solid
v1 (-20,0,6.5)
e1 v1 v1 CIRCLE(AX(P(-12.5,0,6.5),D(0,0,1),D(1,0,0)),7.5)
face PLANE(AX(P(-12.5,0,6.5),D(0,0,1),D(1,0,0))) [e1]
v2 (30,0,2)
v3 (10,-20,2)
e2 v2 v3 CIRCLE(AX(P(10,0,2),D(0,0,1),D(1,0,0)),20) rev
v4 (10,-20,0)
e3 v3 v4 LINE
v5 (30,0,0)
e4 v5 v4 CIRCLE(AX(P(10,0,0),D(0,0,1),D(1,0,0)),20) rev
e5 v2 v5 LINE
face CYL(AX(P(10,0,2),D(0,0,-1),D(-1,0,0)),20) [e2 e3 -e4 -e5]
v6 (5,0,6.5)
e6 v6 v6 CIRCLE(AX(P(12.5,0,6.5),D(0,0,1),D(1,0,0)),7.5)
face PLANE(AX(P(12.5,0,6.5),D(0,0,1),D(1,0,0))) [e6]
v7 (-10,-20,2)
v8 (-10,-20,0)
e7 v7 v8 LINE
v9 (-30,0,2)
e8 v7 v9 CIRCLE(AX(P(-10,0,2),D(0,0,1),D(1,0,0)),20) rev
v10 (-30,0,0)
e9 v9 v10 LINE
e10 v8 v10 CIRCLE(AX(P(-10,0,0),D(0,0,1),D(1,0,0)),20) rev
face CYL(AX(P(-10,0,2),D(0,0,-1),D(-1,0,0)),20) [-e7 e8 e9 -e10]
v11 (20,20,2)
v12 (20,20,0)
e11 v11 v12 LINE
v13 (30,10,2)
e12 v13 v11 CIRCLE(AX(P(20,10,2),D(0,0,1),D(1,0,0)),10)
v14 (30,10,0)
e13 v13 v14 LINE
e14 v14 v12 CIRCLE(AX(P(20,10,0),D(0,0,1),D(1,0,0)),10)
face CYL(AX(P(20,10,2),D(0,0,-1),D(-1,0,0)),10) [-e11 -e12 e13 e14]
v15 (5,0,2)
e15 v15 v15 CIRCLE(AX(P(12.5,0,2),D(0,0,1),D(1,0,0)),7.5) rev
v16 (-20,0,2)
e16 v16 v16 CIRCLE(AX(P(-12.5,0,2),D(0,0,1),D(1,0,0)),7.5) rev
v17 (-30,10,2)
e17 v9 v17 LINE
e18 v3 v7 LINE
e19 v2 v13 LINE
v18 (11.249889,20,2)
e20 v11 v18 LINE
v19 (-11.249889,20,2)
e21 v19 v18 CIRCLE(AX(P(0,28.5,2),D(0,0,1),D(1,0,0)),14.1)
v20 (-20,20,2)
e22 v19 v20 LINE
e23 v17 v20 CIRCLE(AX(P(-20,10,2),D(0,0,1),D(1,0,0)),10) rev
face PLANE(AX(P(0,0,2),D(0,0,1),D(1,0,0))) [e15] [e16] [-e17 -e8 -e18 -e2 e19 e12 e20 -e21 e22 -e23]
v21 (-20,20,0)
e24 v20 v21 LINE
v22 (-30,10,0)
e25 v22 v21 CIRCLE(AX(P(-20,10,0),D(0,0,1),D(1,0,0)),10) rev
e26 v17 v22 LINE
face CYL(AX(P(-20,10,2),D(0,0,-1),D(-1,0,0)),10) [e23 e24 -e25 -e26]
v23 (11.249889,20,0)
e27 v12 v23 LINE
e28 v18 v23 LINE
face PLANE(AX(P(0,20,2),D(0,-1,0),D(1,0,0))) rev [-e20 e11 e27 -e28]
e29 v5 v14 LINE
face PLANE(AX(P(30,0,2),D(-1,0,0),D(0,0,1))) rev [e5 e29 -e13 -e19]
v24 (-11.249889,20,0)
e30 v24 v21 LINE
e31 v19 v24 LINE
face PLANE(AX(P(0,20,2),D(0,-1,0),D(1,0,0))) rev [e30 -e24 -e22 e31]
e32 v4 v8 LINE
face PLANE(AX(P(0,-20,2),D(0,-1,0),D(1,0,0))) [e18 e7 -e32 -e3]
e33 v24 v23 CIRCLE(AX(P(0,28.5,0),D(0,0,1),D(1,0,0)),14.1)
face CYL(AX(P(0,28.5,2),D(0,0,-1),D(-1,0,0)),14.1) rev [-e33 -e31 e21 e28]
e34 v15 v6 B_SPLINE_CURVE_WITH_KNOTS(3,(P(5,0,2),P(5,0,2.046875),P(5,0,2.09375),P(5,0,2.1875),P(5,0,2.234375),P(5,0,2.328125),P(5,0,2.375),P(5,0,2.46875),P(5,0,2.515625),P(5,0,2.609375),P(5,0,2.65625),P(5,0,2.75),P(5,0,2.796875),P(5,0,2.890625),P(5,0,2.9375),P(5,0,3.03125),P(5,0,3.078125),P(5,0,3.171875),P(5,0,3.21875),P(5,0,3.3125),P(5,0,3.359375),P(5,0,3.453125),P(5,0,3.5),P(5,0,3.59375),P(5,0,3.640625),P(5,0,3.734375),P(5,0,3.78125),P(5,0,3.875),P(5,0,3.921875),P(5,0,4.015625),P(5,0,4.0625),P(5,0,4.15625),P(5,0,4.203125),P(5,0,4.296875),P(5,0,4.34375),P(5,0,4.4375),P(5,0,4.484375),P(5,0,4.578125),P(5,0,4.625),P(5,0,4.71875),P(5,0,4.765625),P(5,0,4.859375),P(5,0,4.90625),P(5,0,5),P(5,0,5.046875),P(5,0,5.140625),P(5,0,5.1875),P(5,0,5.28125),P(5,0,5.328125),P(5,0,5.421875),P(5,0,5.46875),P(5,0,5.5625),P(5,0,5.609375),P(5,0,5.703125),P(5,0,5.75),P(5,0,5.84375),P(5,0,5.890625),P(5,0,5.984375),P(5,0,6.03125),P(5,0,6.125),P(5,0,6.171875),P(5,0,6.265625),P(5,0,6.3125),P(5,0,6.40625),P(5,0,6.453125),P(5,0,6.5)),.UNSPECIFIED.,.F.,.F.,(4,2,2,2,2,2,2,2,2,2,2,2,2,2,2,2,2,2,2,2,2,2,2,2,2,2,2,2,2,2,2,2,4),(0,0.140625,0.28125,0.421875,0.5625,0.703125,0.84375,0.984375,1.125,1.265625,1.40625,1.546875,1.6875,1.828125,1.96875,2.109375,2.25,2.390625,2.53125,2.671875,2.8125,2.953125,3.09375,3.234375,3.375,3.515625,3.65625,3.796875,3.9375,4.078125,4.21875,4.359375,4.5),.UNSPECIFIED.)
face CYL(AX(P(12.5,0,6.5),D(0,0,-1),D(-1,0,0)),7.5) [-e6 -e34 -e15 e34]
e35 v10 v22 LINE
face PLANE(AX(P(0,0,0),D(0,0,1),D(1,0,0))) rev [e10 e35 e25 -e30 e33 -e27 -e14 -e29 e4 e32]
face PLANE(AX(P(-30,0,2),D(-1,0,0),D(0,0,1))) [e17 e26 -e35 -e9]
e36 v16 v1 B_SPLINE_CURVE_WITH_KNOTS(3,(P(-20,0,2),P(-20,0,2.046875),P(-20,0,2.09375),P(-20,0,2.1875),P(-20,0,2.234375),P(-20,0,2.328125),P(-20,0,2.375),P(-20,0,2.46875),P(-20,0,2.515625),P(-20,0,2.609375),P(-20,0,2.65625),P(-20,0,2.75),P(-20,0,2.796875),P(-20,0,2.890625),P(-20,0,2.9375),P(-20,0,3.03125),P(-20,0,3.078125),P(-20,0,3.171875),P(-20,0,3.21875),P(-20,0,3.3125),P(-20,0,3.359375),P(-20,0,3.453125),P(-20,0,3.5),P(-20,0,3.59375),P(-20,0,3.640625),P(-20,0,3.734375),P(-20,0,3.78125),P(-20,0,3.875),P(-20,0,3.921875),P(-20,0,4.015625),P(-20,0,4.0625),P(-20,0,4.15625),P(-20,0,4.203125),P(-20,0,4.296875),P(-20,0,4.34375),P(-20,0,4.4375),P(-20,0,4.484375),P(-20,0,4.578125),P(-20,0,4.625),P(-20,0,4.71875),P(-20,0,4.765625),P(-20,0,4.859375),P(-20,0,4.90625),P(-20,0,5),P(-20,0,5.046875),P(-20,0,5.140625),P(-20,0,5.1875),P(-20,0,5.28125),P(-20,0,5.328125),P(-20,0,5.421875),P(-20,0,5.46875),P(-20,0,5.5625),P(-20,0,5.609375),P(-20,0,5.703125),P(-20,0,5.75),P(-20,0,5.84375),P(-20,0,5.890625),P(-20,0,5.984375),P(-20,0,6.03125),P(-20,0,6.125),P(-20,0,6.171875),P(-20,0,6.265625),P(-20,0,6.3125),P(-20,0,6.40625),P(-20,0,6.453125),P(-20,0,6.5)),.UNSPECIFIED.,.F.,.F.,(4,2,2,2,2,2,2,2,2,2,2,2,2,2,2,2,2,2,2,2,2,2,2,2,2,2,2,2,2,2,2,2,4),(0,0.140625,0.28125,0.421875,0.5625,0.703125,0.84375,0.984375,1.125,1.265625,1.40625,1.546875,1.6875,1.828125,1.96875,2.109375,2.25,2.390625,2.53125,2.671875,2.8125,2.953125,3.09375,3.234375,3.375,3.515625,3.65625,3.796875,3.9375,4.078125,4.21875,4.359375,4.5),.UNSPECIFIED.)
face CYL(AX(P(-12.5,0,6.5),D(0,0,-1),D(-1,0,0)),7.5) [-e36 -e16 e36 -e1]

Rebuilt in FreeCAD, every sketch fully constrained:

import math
import FreeCAD as App
import Part
import Sketcher
Q = App.Units.Quantity

doc = App.newDocument("Part")
params = doc.addObject("Spreadsheet::Sheet", "Params")
for row, (alias, value) in enumerate([
    ("sketch1_radius", "20 mm"),
    ("sketch1_radius2", "10 mm"),
    ("sketch1_radius3", "14.1 mm"),
    ("sketch1_width", "20 mm"),
    ("sketch1_height", "10 mm"),
    ("pad1_length", "2 mm"),
    ("sketch2_diameter", "15 mm"),
    ("pad2_length", "6.5 mm"),
], start=1):
    params.set(f"A{row}", alias)
    params.set(f"B{row}", "=" + value)
    params.setAlias(f"B{row}", alias)

body = doc.addObject("PartDesign::Body", "Body")

sketch1 = body.newObject("Sketcher::SketchObject", "Sketch")
sketch1.AttachmentSupport = (doc.getObject("XY_Plane"), [""])
sketch1.MapMode = "FlatFace"
sketch1.addGeometry(Part.LineSegment(App.Vector(-10, -20, 0), App.Vector(10, -20, 0)), False)
sketch1.addGeometry(Part.ArcOfCircle(Part.Circle(App.Vector(10, 0, 0), App.Vector(0, 0, 1), 20), math.radians(-90), math.radians(0)), False)
sketch1.addGeometry(Part.LineSegment(App.Vector(30, 0, 0), App.Vector(30, 10, 0)), False)
sketch1.addGeometry(Part.ArcOfCircle(Part.Circle(App.Vector(20, 10, 0), App.Vector(0, 0, 1), 10), math.radians(0), math.radians(90)), False)
sketch1.addGeometry(Part.LineSegment(App.Vector(20, 20, 0), App.Vector(11, 20, 0)), False)
sketch1.addGeometry(Part.ArcOfCircle(Part.Circle(App.Vector(0, 28, 0), App.Vector(0, 0, 1), 14), math.radians(-143), math.radians(-37)), False)
sketch1.addGeometry(Part.LineSegment(App.Vector(-11, 20, 0), App.Vector(-20, 20, 0)), False)
sketch1.addGeometry(Part.ArcOfCircle(Part.Circle(App.Vector(-20, 10, 0), App.Vector(0, 0, 1), 10), math.radians(90), math.radians(180)), False)
sketch1.addGeometry(Part.LineSegment(App.Vector(-30, 10, 0), App.Vector(-30, 0, 0)), False)
sketch1.addGeometry(Part.ArcOfCircle(Part.Circle(App.Vector(-10, 0, 0), App.Vector(0, 0, 1), 20), math.radians(180), math.radians(270)), False)
sketch1.addConstraint(Sketcher.Constraint("Tangent", 0, 2, 1, 1))
sketch1.addConstraint(Sketcher.Constraint("Tangent", 1, 2, 2, 1))
sketch1.addConstraint(Sketcher.Constraint("Tangent", 2, 2, 3, 1))
sketch1.addConstraint(Sketcher.Constraint("Tangent", 3, 2, 4, 1))
sketch1.addConstraint(Sketcher.Constraint("Coincident", 4, 2, 5, 2))
sketch1.addConstraint(Sketcher.Constraint("Coincident", 5, 1, 6, 1))
sketch1.addConstraint(Sketcher.Constraint("Tangent", 6, 2, 7, 1))
sketch1.addConstraint(Sketcher.Constraint("Tangent", 7, 2, 8, 1))
sketch1.addConstraint(Sketcher.Constraint("Tangent", 8, 2, 9, 1))
sketch1.addConstraint(Sketcher.Constraint("Tangent", 9, 2, 0, 1))
sketch1.addConstraint(Sketcher.Constraint("Horizontal", 0))
sketch1.addConstraint(Sketcher.Constraint("Vertical", 2))
sketch1.addConstraint(Sketcher.Constraint("Horizontal", 4))
sketch1.addConstraint(Sketcher.Constraint("Horizontal", 6))
sketch1.addConstraint(Sketcher.Constraint("Vertical", 8))
sketch1.addConstraint(Sketcher.Constraint("Equal", 3, 7))
sketch1.addConstraint(Sketcher.Constraint("Equal", 1, 9))
sketch1.addConstraint(Sketcher.Constraint("Symmetric", 1, 3, 9, 3, -1, 1))
sketch1.addConstraint(Sketcher.Constraint("Symmetric", 4, 2, 5, 1, -2))
sketch1.addConstraint(Sketcher.Constraint("Radius", 1, Q("20 mm")))
sketch1.addConstraint(Sketcher.Constraint("Radius", 3, Q("10 mm")))
sketch1.addConstraint(Sketcher.Constraint("Radius", 5, Q("14.1 mm")))
sketch1.addConstraint(Sketcher.Constraint("DistanceX", 0, 1, 0, 2, Q("20 mm")))
sketch1.addConstraint(Sketcher.Constraint("DistanceY", 2, 1, 2, 2, Q("10 mm")))
sketch1.addConstraint(Sketcher.Constraint("DistanceY", -1, 1, 5, 3, Q("28.5 mm")))
sketch1.setExpression("Constraints[19]", "Params.sketch1_radius")
sketch1.setExpression("Constraints[20]", "Params.sketch1_radius2")
sketch1.setExpression("Constraints[21]", "Params.sketch1_radius3")
sketch1.setExpression("Constraints[22]", "Params.sketch1_width")
sketch1.setExpression("Constraints[23]", "Params.sketch1_height")
pad1 = body.newObject("PartDesign::Pad", "Pad")
pad1.Profile = sketch1
pad1.setExpression("Length", "Params.pad1_length")

sketch2 = body.newObject("Sketcher::SketchObject", "Sketch001")
sketch2.AttachmentSupport = (doc.getObject("XY_Plane"), [""])
sketch2.MapMode = "FlatFace"
sketch2.addGeometry(Part.Circle(App.Vector(-12, 0, 0), App.Vector(0, 0, 1), 8), False)
sketch2.addGeometry(Part.Circle(App.Vector(12, 0, 0), App.Vector(0, 0, 1), 8), False)
sketch2.addConstraint(Sketcher.Constraint("Equal", 0, 1))
sketch2.addConstraint(Sketcher.Constraint("Symmetric", 0, 3, 1, 3, -1, 1))
sketch2.addConstraint(Sketcher.Constraint("PointOnObject", 0, 3, -1))
sketch2.addConstraint(Sketcher.Constraint("Diameter", 0, Q("15 mm")))
sketch2.addConstraint(Sketcher.Constraint("DistanceX", 0, 3, 1, 3, Q("25 mm")))
sketch2.setExpression("Constraints[3]", "Params.sketch2_diameter")
pad2 = body.newObject("PartDesign::Pad", "Pad001")
pad2.Profile = sketch2
pad2.setExpression("Length", "Params.pad2_length")

doc.recompute()
